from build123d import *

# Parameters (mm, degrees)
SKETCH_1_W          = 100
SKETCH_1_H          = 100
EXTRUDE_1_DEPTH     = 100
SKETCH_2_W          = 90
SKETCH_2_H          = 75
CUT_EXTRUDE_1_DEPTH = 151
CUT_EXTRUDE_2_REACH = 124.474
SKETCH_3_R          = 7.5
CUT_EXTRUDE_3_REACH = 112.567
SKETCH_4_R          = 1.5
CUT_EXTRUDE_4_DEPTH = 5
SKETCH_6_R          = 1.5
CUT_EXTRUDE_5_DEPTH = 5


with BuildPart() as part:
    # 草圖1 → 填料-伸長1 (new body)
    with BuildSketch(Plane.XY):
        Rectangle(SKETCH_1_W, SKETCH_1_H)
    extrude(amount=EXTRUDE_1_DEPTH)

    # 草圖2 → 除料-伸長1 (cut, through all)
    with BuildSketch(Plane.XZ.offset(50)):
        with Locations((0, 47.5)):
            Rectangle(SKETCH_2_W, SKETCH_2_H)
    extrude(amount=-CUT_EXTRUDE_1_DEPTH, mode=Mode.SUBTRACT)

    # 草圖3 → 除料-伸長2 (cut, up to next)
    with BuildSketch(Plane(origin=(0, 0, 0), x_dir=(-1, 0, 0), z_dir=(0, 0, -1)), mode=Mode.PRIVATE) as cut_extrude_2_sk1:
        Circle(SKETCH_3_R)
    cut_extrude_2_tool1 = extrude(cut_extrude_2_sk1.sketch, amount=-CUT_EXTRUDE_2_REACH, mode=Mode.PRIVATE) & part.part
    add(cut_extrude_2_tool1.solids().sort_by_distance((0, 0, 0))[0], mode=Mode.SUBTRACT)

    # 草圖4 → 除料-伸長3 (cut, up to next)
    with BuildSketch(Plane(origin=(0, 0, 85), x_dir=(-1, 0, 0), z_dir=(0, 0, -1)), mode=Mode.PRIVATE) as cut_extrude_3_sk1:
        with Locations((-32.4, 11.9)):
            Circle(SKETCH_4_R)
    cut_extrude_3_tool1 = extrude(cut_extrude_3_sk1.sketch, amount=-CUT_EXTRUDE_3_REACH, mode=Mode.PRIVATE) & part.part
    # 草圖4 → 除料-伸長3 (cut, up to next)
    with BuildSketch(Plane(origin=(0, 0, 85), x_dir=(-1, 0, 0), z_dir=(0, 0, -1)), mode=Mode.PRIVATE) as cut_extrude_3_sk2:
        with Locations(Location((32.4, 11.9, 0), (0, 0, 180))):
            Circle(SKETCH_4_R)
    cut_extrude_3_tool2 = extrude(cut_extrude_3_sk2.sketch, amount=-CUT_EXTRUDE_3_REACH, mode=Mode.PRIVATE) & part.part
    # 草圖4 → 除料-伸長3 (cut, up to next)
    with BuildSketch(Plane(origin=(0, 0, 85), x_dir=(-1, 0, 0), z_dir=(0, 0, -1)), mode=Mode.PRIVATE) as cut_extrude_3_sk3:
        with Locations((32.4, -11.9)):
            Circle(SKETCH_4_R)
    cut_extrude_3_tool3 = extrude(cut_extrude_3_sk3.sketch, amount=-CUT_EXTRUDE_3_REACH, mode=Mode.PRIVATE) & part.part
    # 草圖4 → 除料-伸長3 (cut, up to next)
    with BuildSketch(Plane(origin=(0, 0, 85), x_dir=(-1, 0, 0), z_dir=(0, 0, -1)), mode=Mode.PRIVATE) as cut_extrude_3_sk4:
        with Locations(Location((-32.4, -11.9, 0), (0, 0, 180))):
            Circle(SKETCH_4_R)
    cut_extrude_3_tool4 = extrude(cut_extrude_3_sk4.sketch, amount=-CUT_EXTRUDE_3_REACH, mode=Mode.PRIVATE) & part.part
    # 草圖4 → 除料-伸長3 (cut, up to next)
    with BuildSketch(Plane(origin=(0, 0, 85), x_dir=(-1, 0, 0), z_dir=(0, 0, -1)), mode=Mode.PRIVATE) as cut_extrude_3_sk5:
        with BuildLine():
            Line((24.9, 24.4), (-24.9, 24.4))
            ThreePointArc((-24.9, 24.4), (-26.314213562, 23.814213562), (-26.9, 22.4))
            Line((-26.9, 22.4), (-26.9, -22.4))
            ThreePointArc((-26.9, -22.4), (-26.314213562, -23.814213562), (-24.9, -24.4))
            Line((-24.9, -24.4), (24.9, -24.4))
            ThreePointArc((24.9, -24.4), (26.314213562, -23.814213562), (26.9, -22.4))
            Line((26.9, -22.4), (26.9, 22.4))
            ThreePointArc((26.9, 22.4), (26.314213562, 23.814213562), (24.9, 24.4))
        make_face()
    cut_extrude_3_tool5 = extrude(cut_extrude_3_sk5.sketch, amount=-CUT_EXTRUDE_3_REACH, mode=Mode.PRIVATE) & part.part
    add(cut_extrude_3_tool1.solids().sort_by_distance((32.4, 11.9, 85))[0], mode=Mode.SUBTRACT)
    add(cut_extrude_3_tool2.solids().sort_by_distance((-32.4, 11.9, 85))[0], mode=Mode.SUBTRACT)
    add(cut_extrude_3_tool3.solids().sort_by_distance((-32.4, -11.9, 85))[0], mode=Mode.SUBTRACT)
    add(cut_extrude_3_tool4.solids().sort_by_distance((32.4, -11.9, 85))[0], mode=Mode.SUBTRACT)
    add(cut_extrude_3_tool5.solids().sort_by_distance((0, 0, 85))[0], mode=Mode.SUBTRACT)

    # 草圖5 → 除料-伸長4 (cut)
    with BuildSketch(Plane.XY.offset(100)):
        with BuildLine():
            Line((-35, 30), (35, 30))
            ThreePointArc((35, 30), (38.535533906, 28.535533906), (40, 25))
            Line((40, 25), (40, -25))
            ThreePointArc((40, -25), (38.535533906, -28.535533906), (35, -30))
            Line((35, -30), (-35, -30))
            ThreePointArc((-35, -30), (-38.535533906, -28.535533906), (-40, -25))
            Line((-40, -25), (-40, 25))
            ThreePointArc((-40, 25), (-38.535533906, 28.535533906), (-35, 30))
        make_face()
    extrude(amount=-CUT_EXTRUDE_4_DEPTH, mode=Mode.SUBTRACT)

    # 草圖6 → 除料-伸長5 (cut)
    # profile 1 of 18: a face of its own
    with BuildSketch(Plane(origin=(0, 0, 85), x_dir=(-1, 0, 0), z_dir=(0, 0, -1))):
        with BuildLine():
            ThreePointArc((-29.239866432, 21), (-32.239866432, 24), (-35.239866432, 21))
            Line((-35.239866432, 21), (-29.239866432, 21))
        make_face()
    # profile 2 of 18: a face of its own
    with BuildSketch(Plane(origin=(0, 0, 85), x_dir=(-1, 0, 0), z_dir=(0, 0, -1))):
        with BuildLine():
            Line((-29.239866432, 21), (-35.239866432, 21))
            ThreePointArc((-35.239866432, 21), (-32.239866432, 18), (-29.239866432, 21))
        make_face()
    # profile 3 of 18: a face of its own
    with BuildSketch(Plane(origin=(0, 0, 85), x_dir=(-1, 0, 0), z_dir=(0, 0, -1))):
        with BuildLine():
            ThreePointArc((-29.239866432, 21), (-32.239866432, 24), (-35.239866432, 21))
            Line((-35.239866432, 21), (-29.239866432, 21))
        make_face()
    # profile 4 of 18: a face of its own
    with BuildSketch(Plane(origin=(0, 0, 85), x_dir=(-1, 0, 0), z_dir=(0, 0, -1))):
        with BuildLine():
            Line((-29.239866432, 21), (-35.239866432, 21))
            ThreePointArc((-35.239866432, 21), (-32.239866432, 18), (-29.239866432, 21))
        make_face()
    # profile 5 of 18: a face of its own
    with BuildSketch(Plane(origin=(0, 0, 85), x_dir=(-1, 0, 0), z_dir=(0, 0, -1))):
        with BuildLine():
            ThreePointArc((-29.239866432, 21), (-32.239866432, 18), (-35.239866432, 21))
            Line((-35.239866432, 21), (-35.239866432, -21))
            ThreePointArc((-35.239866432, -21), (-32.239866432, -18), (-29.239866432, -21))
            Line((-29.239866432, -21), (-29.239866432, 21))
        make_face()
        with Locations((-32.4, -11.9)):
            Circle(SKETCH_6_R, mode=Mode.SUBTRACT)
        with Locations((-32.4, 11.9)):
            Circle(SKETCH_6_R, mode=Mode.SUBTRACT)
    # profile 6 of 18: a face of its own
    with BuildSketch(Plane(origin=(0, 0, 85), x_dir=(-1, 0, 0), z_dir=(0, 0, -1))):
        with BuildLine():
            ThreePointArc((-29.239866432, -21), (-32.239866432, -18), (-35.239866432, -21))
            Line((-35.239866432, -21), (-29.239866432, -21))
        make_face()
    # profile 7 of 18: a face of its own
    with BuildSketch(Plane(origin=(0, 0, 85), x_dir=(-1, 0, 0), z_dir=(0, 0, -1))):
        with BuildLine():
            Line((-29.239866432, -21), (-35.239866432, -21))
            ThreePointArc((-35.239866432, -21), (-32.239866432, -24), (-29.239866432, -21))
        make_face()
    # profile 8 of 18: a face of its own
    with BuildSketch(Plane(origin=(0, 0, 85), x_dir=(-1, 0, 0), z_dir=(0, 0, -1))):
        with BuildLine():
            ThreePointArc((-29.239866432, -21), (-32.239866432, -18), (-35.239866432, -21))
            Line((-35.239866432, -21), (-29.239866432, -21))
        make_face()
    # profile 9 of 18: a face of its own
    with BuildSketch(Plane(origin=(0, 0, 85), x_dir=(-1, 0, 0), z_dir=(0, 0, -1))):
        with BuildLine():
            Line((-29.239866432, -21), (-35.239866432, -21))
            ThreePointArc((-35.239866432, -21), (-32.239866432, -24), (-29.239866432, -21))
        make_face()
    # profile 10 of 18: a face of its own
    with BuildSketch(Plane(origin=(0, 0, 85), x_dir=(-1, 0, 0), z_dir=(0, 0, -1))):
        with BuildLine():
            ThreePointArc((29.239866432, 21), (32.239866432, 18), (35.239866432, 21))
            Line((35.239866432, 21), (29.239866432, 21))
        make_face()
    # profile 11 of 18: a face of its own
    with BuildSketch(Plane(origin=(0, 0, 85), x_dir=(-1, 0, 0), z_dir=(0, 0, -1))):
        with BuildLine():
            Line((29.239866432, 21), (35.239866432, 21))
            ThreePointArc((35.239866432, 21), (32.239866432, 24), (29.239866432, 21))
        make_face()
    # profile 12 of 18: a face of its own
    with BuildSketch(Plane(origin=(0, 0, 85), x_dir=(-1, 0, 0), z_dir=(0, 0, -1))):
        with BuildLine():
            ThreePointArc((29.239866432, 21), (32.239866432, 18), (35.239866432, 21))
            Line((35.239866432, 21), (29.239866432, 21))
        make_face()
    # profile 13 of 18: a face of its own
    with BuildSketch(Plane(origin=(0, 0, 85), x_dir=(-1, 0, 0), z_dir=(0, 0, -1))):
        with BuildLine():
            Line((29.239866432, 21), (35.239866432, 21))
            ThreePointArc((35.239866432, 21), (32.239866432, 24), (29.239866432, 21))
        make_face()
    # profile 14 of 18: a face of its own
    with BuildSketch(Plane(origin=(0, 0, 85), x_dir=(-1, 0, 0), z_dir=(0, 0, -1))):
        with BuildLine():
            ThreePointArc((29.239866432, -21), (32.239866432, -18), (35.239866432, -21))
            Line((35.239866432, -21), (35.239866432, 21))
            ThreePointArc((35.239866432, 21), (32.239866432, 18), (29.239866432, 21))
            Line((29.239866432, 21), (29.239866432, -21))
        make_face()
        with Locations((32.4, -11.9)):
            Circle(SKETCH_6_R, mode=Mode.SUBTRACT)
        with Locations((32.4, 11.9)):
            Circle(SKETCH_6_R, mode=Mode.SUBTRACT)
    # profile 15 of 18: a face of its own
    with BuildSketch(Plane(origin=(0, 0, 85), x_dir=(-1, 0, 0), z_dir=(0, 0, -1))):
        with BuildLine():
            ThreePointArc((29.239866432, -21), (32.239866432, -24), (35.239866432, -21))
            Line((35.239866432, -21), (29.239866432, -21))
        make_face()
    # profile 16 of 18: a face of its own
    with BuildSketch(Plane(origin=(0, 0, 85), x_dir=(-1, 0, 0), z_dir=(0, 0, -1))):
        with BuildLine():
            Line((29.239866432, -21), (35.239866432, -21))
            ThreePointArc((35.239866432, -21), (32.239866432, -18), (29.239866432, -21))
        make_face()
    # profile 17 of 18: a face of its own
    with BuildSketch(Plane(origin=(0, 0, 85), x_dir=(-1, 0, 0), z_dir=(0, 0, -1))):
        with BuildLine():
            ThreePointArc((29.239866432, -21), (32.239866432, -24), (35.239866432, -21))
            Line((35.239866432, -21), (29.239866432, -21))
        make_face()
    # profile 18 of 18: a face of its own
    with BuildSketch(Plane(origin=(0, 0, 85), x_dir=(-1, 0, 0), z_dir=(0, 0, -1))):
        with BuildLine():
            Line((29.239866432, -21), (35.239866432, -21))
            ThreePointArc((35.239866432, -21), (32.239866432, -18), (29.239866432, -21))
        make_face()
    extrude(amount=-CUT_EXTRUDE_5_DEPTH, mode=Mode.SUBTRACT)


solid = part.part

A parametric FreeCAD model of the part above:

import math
import FreeCAD as App
import Part
import Sketcher
Q = App.Units.Quantity

doc = App.newDocument("Part")
body = doc.addObject("PartDesign::Body", "Body")

# Sketch on XY plane
sketch1 = body.newObject("Sketcher::SketchObject", "Sketch")
sketch1.AttachmentSupport = (doc.getObject("XY_Plane"), [""])
sketch1.MapMode = "FlatFace"
sketch1.addGeometry([
    Part.LineSegment(App.Vector(-50, 50, 0), App.Vector(-50, -50, 0)),
    Part.LineSegment(App.Vector(-50, -50, 0), App.Vector(50, -50, 0)),
    Part.LineSegment(App.Vector(50, -50, 0), App.Vector(50, 50, 0)),
    Part.LineSegment(App.Vector(50, 50, 0), App.Vector(-50, 50, 0)),
], False)
sketch1.addConstraint([
    Sketcher.Constraint("Coincident", 0, 2, 1, 1),
    Sketcher.Constraint("Coincident", 1, 2, 2, 1),
    Sketcher.Constraint("Coincident", 2, 2, 3, 1),
    Sketcher.Constraint("Coincident", 3, 2, 0, 1),
    Sketcher.Constraint("Vertical", 0),
    Sketcher.Constraint("Horizontal", 1),
    Sketcher.Constraint("Vertical", 2),
    Sketcher.Constraint("Horizontal", 3),
    Sketcher.Constraint("Symmetric", 0, 2, 2, 2, -1, 1),
    Sketcher.Constraint("Equal", 3, 0),
    Sketcher.Constraint("DistanceX", 1, 1, 1, 2, Q("100 mm")),
])
pad1 = body.newObject("PartDesign::Pad", "Pad")
pad1.Profile = sketch1
pad1.Length = 100

# Sketch on XZ plane
sketch2 = body.newObject("Sketcher::SketchObject", "Sketch001")
sketch2.AttachmentSupport = (doc.getObject("XZ_Plane"), [""])
sketch2.MapMode = "FlatFace"
sketch2.AttachmentOffset = App.Placement(App.Vector(0, 0, 50), App.Rotation())
sketch2.addGeometry([
    Part.LineSegment(App.Vector(-45, 85, 0), App.Vector(-45, 10, 0)),
    Part.LineSegment(App.Vector(-45, 10, 0), App.Vector(45, 10, 0)),
    Part.LineSegment(App.Vector(45, 10, 0), App.Vector(45, 85, 0)),
    Part.LineSegment(App.Vector(45, 85, 0), App.Vector(-45, 85, 0)),
], False)
sketch2.addConstraint([
    Sketcher.Constraint("Coincident", 0, 2, 1, 1),
    Sketcher.Constraint("Coincident", 1, 2, 2, 1),
    Sketcher.Constraint("Coincident", 2, 2, 3, 1),
    Sketcher.Constraint("Coincident", 3, 2, 0, 1),
    Sketcher.Constraint("Vertical", 0),
    Sketcher.Constraint("Horizontal", 1),
    Sketcher.Constraint("Vertical", 2),
    Sketcher.Constraint("Horizontal", 3),
    Sketcher.Constraint("DistanceX", 1, 1, 1, 2, Q("90 mm")),
    Sketcher.Constraint("DistanceY", 0, 2, 0, 1, Q("75 mm")),
    Sketcher.Constraint("DistanceX", 0, 2, -1, 1, Q("45 mm")),
    Sketcher.Constraint("DistanceY", -1, 1, 0, 2, Q("10 mm")),
])
pocket1 = body.newObject("PartDesign::Pocket", "Pocket")
pocket1.Profile = sketch2
pocket1.Type = "ThroughAll"

# Sketch on XY plane
sketch3 = body.newObject("Sketcher::SketchObject", "Sketch002")
sketch3.AttachmentSupport = (doc.getObject("XY_Plane"), [""])
sketch3.MapMode = "FlatFace"
sketch3.addGeometry(Part.Circle(App.Vector(0, 0, 0), App.Vector(0, 0, 1), 8), False)
sketch3.addConstraint([
    Sketcher.Constraint("Coincident", 0, 3, -1, 1),
    Sketcher.Constraint("Diameter", 0, Q("15 mm")),
])
pocket2 = body.newObject("PartDesign::Pocket", "Pocket001")
pocket2.Profile = sketch3
pocket2.Type = "UpToFirst"
pocket2.Reversed = True

# Sketch on XY plane
sketch4 = body.newObject("Sketcher::SketchObject", "Sketch003")
sketch4.AttachmentSupport = (doc.getObject("XY_Plane"), [""])
sketch4.MapMode = "FlatFace"
sketch4.AttachmentOffset = App.Placement(App.Vector(0, 0, 85), App.Rotation())
sketch4.addGeometry(Part.Circle(App.Vector(32.4, 11.9, 0), App.Vector(0, 0, 1), 1.5), False)
sketch4.addConstraint([
    Sketcher.Constraint("Diameter", 0, Q("3 mm")),
    Sketcher.Constraint("DistanceX", -1, 1, 0, 3, Q("32.4 mm")),
    Sketcher.Constraint("DistanceY", -1, 1, 0, 3, Q("11.9 mm")),
])
pocket3 = body.newObject("PartDesign::Pocket", "Pocket002")
pocket3.Profile = sketch4
pocket3.Type = "UpToFirst"
pocket3.Reversed = True

# Sketch on XY plane
sketch5 = body.newObject("Sketcher::SketchObject", "Sketch004")
sketch5.AttachmentSupport = (doc.getObject("XY_Plane"), [""])
sketch5.MapMode = "FlatFace"
sketch5.AttachmentOffset = App.Placement(App.Vector(0, 0, 85), App.Rotation())
sketch5.addGeometry(Part.Circle(App.Vector(-32.4, 11.9, 0), App.Vector(0, 0, 1), 1.5), False)
sketch5.addConstraint([
    Sketcher.Constraint("Diameter", 0, Q("3 mm")),
    Sketcher.Constraint("DistanceX", 0, 3, -1, 1, Q("32.4 mm")),
    Sketcher.Constraint("DistanceY", -1, 1, 0, 3, Q("11.9 mm")),
])
pocket4 = body.newObject("PartDesign::Pocket", "Pocket003")
pocket4.Profile = sketch5
pocket4.Type = "UpToFirst"
pocket4.Reversed = True

# Sketch on XY plane
sketch6 = body.newObject("Sketcher::SketchObject", "Sketch005")
sketch6.AttachmentSupport = (doc.getObject("XY_Plane"), [""])
sketch6.MapMode = "FlatFace"
sketch6.AttachmentOffset = App.Placement(App.Vector(0, 0, 85), App.Rotation())
sketch6.addGeometry(Part.Circle(App.Vector(-32.4, -11.9, 0), App.Vector(0, 0, 1), 1.5), False)
sketch6.addConstraint([
    Sketcher.Constraint("Diameter", 0, Q("3 mm")),
    Sketcher.Constraint("DistanceX", 0, 3, -1, 1, Q("32.4 mm")),
    Sketcher.Constraint("DistanceY", 0, 3, -1, 1, Q("11.9 mm")),
])
pocket5 = body.newObject("PartDesign::Pocket", "Pocket004")
pocket5.Profile = sketch6
pocket5.Type = "UpToFirst"
pocket5.Reversed = True

# Sketch on XY plane
sketch7 = body.newObject("Sketcher::SketchObject", "Sketch006")
sketch7.AttachmentSupport = (doc.getObject("XY_Plane"), [""])
sketch7.MapMode = "FlatFace"
sketch7.AttachmentOffset = App.Placement(App.Vector(0, 0, 85), App.Rotation())
sketch7.addGeometry(Part.Circle(App.Vector(32.4, -11.9, 0), App.Vector(0, 0, 1), 1.5), False)
sketch7.addConstraint([
    Sketcher.Constraint("Diameter", 0, Q("3 mm")),
    Sketcher.Constraint("DistanceX", -1, 1, 0, 3, Q("32.4 mm")),
    Sketcher.Constraint("DistanceY", 0, 3, -1, 1, Q("11.9 mm")),
])
pocket6 = body.newObject("PartDesign::Pocket", "Pocket005")
pocket6.Profile = sketch7
pocket6.Type = "UpToFirst"
pocket6.Reversed = True

# Sketch on XY plane
sketch8 = body.newObject("Sketcher::SketchObject", "Sketch007")
sketch8.AttachmentSupport = (doc.getObject("XY_Plane"), [""])
sketch8.MapMode = "FlatFace"
sketch8.AttachmentOffset = App.Placement(App.Vector(0, 0, 85), App.Rotation())
sketch8.addGeometry([
    Part.LineSegment(App.Vector(-24.9, 24.4, 0), App.Vector(24.9, 24.4, 0)),  # 0
    Part.ArcOfCircle(Part.Circle(App.Vector(24.9, 22.4, 0), App.Vector(0, 0, 1), 2), math.radians(0), math.radians(90)),  # 1
    Part.LineSegment(App.Vector(26.9, 22.4, 0), App.Vector(26.9, -22.4, 0)),  # 2
    Part.ArcOfCircle(Part.Circle(App.Vector(24.9, -22.4, 0), App.Vector(0, 0, 1), 2), math.radians(-90), math.radians(0)),  # 3
    Part.LineSegment(App.Vector(24.9, -24.4, 0), App.Vector(-24.9, -24.4, 0)),  # 4
    Part.ArcOfCircle(Part.Circle(App.Vector(-24.9, -22.4, 0), App.Vector(0, 0, 1), 2), math.radians(-180), math.radians(-90)),  # 5
    Part.LineSegment(App.Vector(-26.9, -22.4, 0), App.Vector(-26.9, 22.4, 0)),  # 6
    Part.ArcOfCircle(Part.Circle(App.Vector(-24.9, 22.4, 0), App.Vector(0, 0, 1), 2), math.radians(90), math.radians(180)),  # 7
], False)
sketch8.addConstraint([
    Sketcher.Constraint("Tangent", 0, 2, 1, 2),
    Sketcher.Constraint("Tangent", 1, 1, 2, 1),
    Sketcher.Constraint("Tangent", 2, 2, 3, 2),
    Sketcher.Constraint("Tangent", 3, 1, 4, 1),
    Sketcher.Constraint("Tangent", 4, 2, 5, 2),
    Sketcher.Constraint("Tangent", 5, 1, 6, 1),
    Sketcher.Constraint("Tangent", 6, 2, 7, 2),
    Sketcher.Constraint("Tangent", 7, 1, 0, 1),
    Sketcher.Constraint("Horizontal", 0),
    Sketcher.Constraint("Vertical", 2),
    Sketcher.Constraint("Horizontal", 4),
    Sketcher.Constraint("Vertical", 6),
    Sketcher.Constraint("Equal", 1, 3),
    Sketcher.Constraint("Equal", 3, 5),
    Sketcher.Constraint("Equal", 5, 7),
    Sketcher.Constraint("Symmetric", 1, 3, 5, 3, -1, 1),
    Sketcher.Constraint("Radius", 1, Q("2 mm")),
    Sketcher.Constraint("DistanceX", 0, 1, 0, 2, Q("49.8 mm")),
    Sketcher.Constraint("DistanceY", 2, 2, 2, 1, Q("44.8 mm")),
])
pocket7 = body.newObject("PartDesign::Pocket", "Pocket006")
pocket7.Profile = sketch8
pocket7.Type = "UpToFirst"
pocket7.Reversed = True

# Sketch on XY plane
sketch9 = body.newObject("Sketcher::SketchObject", "Sketch008")
sketch9.AttachmentSupport = (doc.getObject("XY_Plane"), [""])
sketch9.MapMode = "FlatFace"
sketch9.AttachmentOffset = App.Placement(App.Vector(0, 0, 100), App.Rotation())
sketch9.addGeometry([
    Part.LineSegment(App.Vector(35, 30, 0), App.Vector(-35, 30, 0)),  # 0
    Part.ArcOfCircle(Part.Circle(App.Vector(-35, 25, 0), App.Vector(0, 0, 1), 5), math.radians(90), math.radians(180)),  # 1
    Part.LineSegment(App.Vector(-40, 25, 0), App.Vector(-40, -25, 0)),  # 2
    Part.ArcOfCircle(Part.Circle(App.Vector(-35, -25, 0), App.Vector(0, 0, 1), 5), math.radians(180), math.radians(270)),  # 3
    Part.LineSegment(App.Vector(-35, -30, 0), App.Vector(35, -30, 0)),  # 4
    Part.ArcOfCircle(Part.Circle(App.Vector(35, -25, 0), App.Vector(0, 0, 1), 5), math.radians(-90), math.radians(0)),  # 5
    Part.LineSegment(App.Vector(40, -25, 0), App.Vector(40, 25, 0)),  # 6
    Part.ArcOfCircle(Part.Circle(App.Vector(35, 25, 0), App.Vector(0, 0, 1), 5), math.radians(0), math.radians(90)),  # 7
], False)
sketch9.addConstraint([
    Sketcher.Constraint("Tangent", 0, 2, 1, 1),
    Sketcher.Constraint("Tangent", 1, 2, 2, 1),
    Sketcher.Constraint("Tangent", 2, 2, 3, 1),
    Sketcher.Constraint("Tangent", 3, 2, 4, 1),
    Sketcher.Constraint("Tangent", 4, 2, 5, 1),
    Sketcher.Constraint("Tangent", 5, 2, 6, 1),
    Sketcher.Constraint("Tangent", 6, 2, 7, 1),
    Sketcher.Constraint("Tangent", 7, 2, 0, 1),
    Sketcher.Constraint("Horizontal", 0),
    Sketcher.Constraint("Vertical", 2),
    Sketcher.Constraint("Horizontal", 4),
    Sketcher.Constraint("Vertical", 6),
    Sketcher.Constraint("Equal", 1, 3),
    Sketcher.Constraint("Equal", 3, 5),
    Sketcher.Constraint("Equal", 5, 7),
    Sketcher.Constraint("Symmetric", 1, 3, 5, 3, -1, 1),
    Sketcher.Constraint("Radius", 1, Q("5 mm")),
    Sketcher.Constraint("DistanceX", 0, 2, 0, 1, Q("70 mm")),
    Sketcher.Constraint("DistanceY", 2, 2, 2, 1, Q("50 mm")),
])
pocket8 = body.newObject("PartDesign::Pocket", "Pocket007")
pocket8.Profile = sketch9
pocket8.Length = 5

# Sketch on XY plane
sketch10 = body.newObject("Sketcher::SketchObject", "Sketch009")
sketch10.AttachmentSupport = (doc.getObject("XY_Plane"), [""])
sketch10.MapMode = "FlatFace"
sketch10.AttachmentOffset = App.Placement(App.Vector(0, 0, 85), App.Rotation())
sketch10.addGeometry([
    Part.ArcOfCircle(Part.Circle(App.Vector(32.2, 21, 0), App.Vector(0, 0, 1), 3), math.radians(0), math.radians(180)),  # 0
    Part.LineSegment(App.Vector(35.2, 21, 0), App.Vector(35.2, -21, 0)),  # 1
    Part.ArcOfCircle(Part.Circle(App.Vector(32.2, -21, 0), App.Vector(0, 0, 1), 3), math.radians(180), math.radians(360)),  # 2
    Part.LineSegment(App.Vector(29.2, -21, 0), App.Vector(29.2, 21, 0)),  # 3
    Part.Circle(App.Vector(32.4, 11.9, 0), App.Vector(0, 0, 1), 1.5),  # 4
    Part.Circle(App.Vector(32.4, -11.9, 0), App.Vector(0, 0, 1), 1.5),  # 5
    Part.LineSegment(App.Vector(-29.2, 21, 0), App.Vector(-29.2, -21, 0)),  # 6
    Part.ArcOfCircle(Part.Circle(App.Vector(-32.2, -21, 0), App.Vector(0, 0, 1), 3), math.radians(180), math.radians(360)),  # 7
    Part.LineSegment(App.Vector(-35.2, -21, 0), App.Vector(-35.2, 21, 0)),  # 8
    Part.ArcOfCircle(Part.Circle(App.Vector(-32.2, 21, 0), App.Vector(0, 0, 1), 3), math.radians(0), math.radians(180)),  # 9
    Part.Circle(App.Vector(-32.4, 11.9, 0), App.Vector(0, 0, 1), 1.5),  # 10
    Part.Circle(App.Vector(-32.4, -11.9, 0), App.Vector(0, 0, 1), 1.5),  # 11
], False)
sketch10.addConstraint([
    Sketcher.Constraint("Tangent", 0, 1, 1, 1),
    Sketcher.Constraint("Tangent", 1, 2, 2, 2),
    Sketcher.Constraint("Tangent", 2, 1, 3, 1),
    Sketcher.Constraint("Tangent", 3, 2, 0, 2),
    Sketcher.Constraint("Tangent", 6, 2, 7, 2),
    Sketcher.Constraint("Tangent", 7, 1, 8, 1),
    Sketcher.Constraint("Tangent", 8, 2, 9, 2),
    Sketcher.Constraint("Tangent", 9, 1, 6, 1),
    Sketcher.Constraint("Vertical", 1),
    Sketcher.Constraint("Vertical", 3),
    Sketcher.Constraint("Vertical", 6),
    Sketcher.Constraint("Vertical", 8),
    Sketcher.Constraint("Equal", 4, 5),
    Sketcher.Constraint("Equal", 2, 7),
    Sketcher.Constraint("Equal", 5, 10),
    Sketcher.Constraint("Equal", 10, 11),
    Sketcher.Constraint("Symmetric", 0, 3, 7, 3, -1, 1),
    Sketcher.Constraint("Symmetric", 5, 3, 10, 3, -1, 1),
    Sketcher.Constraint("Symmetric", 4, 3, 11, 3, -1, 1),
    Sketcher.Constraint("Symmetric", 4, 3, 10, 3, -2),
    Sketcher.Constraint("Horizontal", 2, 3, 7, 3),
    Sketcher.Constraint("Horizontal", 0, 3, 9, 3),
    Sketcher.Constraint("Diameter", 4, Q("3 mm")),
    Sketcher.Constraint("Radius", 0, Q("3 mm")),
    Sketcher.Constraint("DistanceY", 1, 2, 1, 1, Q("42 mm")),
    Sketcher.Constraint("DistanceX", -1, 1, 4, 3, Q("32.4 mm")),
    Sketcher.Constraint("DistanceY", -1, 1, 4, 3, Q("11.9 mm")),
    Sketcher.Constraint("DistanceX", -1, 1, 0, 3, Q("32.239866 mm")),
])
pocket9 = body.newObject("PartDesign::Pocket", "Pocket008")
pocket9.Profile = sketch10
pocket9.Length = 5
pocket9.Reversed = True

doc.recompute()
